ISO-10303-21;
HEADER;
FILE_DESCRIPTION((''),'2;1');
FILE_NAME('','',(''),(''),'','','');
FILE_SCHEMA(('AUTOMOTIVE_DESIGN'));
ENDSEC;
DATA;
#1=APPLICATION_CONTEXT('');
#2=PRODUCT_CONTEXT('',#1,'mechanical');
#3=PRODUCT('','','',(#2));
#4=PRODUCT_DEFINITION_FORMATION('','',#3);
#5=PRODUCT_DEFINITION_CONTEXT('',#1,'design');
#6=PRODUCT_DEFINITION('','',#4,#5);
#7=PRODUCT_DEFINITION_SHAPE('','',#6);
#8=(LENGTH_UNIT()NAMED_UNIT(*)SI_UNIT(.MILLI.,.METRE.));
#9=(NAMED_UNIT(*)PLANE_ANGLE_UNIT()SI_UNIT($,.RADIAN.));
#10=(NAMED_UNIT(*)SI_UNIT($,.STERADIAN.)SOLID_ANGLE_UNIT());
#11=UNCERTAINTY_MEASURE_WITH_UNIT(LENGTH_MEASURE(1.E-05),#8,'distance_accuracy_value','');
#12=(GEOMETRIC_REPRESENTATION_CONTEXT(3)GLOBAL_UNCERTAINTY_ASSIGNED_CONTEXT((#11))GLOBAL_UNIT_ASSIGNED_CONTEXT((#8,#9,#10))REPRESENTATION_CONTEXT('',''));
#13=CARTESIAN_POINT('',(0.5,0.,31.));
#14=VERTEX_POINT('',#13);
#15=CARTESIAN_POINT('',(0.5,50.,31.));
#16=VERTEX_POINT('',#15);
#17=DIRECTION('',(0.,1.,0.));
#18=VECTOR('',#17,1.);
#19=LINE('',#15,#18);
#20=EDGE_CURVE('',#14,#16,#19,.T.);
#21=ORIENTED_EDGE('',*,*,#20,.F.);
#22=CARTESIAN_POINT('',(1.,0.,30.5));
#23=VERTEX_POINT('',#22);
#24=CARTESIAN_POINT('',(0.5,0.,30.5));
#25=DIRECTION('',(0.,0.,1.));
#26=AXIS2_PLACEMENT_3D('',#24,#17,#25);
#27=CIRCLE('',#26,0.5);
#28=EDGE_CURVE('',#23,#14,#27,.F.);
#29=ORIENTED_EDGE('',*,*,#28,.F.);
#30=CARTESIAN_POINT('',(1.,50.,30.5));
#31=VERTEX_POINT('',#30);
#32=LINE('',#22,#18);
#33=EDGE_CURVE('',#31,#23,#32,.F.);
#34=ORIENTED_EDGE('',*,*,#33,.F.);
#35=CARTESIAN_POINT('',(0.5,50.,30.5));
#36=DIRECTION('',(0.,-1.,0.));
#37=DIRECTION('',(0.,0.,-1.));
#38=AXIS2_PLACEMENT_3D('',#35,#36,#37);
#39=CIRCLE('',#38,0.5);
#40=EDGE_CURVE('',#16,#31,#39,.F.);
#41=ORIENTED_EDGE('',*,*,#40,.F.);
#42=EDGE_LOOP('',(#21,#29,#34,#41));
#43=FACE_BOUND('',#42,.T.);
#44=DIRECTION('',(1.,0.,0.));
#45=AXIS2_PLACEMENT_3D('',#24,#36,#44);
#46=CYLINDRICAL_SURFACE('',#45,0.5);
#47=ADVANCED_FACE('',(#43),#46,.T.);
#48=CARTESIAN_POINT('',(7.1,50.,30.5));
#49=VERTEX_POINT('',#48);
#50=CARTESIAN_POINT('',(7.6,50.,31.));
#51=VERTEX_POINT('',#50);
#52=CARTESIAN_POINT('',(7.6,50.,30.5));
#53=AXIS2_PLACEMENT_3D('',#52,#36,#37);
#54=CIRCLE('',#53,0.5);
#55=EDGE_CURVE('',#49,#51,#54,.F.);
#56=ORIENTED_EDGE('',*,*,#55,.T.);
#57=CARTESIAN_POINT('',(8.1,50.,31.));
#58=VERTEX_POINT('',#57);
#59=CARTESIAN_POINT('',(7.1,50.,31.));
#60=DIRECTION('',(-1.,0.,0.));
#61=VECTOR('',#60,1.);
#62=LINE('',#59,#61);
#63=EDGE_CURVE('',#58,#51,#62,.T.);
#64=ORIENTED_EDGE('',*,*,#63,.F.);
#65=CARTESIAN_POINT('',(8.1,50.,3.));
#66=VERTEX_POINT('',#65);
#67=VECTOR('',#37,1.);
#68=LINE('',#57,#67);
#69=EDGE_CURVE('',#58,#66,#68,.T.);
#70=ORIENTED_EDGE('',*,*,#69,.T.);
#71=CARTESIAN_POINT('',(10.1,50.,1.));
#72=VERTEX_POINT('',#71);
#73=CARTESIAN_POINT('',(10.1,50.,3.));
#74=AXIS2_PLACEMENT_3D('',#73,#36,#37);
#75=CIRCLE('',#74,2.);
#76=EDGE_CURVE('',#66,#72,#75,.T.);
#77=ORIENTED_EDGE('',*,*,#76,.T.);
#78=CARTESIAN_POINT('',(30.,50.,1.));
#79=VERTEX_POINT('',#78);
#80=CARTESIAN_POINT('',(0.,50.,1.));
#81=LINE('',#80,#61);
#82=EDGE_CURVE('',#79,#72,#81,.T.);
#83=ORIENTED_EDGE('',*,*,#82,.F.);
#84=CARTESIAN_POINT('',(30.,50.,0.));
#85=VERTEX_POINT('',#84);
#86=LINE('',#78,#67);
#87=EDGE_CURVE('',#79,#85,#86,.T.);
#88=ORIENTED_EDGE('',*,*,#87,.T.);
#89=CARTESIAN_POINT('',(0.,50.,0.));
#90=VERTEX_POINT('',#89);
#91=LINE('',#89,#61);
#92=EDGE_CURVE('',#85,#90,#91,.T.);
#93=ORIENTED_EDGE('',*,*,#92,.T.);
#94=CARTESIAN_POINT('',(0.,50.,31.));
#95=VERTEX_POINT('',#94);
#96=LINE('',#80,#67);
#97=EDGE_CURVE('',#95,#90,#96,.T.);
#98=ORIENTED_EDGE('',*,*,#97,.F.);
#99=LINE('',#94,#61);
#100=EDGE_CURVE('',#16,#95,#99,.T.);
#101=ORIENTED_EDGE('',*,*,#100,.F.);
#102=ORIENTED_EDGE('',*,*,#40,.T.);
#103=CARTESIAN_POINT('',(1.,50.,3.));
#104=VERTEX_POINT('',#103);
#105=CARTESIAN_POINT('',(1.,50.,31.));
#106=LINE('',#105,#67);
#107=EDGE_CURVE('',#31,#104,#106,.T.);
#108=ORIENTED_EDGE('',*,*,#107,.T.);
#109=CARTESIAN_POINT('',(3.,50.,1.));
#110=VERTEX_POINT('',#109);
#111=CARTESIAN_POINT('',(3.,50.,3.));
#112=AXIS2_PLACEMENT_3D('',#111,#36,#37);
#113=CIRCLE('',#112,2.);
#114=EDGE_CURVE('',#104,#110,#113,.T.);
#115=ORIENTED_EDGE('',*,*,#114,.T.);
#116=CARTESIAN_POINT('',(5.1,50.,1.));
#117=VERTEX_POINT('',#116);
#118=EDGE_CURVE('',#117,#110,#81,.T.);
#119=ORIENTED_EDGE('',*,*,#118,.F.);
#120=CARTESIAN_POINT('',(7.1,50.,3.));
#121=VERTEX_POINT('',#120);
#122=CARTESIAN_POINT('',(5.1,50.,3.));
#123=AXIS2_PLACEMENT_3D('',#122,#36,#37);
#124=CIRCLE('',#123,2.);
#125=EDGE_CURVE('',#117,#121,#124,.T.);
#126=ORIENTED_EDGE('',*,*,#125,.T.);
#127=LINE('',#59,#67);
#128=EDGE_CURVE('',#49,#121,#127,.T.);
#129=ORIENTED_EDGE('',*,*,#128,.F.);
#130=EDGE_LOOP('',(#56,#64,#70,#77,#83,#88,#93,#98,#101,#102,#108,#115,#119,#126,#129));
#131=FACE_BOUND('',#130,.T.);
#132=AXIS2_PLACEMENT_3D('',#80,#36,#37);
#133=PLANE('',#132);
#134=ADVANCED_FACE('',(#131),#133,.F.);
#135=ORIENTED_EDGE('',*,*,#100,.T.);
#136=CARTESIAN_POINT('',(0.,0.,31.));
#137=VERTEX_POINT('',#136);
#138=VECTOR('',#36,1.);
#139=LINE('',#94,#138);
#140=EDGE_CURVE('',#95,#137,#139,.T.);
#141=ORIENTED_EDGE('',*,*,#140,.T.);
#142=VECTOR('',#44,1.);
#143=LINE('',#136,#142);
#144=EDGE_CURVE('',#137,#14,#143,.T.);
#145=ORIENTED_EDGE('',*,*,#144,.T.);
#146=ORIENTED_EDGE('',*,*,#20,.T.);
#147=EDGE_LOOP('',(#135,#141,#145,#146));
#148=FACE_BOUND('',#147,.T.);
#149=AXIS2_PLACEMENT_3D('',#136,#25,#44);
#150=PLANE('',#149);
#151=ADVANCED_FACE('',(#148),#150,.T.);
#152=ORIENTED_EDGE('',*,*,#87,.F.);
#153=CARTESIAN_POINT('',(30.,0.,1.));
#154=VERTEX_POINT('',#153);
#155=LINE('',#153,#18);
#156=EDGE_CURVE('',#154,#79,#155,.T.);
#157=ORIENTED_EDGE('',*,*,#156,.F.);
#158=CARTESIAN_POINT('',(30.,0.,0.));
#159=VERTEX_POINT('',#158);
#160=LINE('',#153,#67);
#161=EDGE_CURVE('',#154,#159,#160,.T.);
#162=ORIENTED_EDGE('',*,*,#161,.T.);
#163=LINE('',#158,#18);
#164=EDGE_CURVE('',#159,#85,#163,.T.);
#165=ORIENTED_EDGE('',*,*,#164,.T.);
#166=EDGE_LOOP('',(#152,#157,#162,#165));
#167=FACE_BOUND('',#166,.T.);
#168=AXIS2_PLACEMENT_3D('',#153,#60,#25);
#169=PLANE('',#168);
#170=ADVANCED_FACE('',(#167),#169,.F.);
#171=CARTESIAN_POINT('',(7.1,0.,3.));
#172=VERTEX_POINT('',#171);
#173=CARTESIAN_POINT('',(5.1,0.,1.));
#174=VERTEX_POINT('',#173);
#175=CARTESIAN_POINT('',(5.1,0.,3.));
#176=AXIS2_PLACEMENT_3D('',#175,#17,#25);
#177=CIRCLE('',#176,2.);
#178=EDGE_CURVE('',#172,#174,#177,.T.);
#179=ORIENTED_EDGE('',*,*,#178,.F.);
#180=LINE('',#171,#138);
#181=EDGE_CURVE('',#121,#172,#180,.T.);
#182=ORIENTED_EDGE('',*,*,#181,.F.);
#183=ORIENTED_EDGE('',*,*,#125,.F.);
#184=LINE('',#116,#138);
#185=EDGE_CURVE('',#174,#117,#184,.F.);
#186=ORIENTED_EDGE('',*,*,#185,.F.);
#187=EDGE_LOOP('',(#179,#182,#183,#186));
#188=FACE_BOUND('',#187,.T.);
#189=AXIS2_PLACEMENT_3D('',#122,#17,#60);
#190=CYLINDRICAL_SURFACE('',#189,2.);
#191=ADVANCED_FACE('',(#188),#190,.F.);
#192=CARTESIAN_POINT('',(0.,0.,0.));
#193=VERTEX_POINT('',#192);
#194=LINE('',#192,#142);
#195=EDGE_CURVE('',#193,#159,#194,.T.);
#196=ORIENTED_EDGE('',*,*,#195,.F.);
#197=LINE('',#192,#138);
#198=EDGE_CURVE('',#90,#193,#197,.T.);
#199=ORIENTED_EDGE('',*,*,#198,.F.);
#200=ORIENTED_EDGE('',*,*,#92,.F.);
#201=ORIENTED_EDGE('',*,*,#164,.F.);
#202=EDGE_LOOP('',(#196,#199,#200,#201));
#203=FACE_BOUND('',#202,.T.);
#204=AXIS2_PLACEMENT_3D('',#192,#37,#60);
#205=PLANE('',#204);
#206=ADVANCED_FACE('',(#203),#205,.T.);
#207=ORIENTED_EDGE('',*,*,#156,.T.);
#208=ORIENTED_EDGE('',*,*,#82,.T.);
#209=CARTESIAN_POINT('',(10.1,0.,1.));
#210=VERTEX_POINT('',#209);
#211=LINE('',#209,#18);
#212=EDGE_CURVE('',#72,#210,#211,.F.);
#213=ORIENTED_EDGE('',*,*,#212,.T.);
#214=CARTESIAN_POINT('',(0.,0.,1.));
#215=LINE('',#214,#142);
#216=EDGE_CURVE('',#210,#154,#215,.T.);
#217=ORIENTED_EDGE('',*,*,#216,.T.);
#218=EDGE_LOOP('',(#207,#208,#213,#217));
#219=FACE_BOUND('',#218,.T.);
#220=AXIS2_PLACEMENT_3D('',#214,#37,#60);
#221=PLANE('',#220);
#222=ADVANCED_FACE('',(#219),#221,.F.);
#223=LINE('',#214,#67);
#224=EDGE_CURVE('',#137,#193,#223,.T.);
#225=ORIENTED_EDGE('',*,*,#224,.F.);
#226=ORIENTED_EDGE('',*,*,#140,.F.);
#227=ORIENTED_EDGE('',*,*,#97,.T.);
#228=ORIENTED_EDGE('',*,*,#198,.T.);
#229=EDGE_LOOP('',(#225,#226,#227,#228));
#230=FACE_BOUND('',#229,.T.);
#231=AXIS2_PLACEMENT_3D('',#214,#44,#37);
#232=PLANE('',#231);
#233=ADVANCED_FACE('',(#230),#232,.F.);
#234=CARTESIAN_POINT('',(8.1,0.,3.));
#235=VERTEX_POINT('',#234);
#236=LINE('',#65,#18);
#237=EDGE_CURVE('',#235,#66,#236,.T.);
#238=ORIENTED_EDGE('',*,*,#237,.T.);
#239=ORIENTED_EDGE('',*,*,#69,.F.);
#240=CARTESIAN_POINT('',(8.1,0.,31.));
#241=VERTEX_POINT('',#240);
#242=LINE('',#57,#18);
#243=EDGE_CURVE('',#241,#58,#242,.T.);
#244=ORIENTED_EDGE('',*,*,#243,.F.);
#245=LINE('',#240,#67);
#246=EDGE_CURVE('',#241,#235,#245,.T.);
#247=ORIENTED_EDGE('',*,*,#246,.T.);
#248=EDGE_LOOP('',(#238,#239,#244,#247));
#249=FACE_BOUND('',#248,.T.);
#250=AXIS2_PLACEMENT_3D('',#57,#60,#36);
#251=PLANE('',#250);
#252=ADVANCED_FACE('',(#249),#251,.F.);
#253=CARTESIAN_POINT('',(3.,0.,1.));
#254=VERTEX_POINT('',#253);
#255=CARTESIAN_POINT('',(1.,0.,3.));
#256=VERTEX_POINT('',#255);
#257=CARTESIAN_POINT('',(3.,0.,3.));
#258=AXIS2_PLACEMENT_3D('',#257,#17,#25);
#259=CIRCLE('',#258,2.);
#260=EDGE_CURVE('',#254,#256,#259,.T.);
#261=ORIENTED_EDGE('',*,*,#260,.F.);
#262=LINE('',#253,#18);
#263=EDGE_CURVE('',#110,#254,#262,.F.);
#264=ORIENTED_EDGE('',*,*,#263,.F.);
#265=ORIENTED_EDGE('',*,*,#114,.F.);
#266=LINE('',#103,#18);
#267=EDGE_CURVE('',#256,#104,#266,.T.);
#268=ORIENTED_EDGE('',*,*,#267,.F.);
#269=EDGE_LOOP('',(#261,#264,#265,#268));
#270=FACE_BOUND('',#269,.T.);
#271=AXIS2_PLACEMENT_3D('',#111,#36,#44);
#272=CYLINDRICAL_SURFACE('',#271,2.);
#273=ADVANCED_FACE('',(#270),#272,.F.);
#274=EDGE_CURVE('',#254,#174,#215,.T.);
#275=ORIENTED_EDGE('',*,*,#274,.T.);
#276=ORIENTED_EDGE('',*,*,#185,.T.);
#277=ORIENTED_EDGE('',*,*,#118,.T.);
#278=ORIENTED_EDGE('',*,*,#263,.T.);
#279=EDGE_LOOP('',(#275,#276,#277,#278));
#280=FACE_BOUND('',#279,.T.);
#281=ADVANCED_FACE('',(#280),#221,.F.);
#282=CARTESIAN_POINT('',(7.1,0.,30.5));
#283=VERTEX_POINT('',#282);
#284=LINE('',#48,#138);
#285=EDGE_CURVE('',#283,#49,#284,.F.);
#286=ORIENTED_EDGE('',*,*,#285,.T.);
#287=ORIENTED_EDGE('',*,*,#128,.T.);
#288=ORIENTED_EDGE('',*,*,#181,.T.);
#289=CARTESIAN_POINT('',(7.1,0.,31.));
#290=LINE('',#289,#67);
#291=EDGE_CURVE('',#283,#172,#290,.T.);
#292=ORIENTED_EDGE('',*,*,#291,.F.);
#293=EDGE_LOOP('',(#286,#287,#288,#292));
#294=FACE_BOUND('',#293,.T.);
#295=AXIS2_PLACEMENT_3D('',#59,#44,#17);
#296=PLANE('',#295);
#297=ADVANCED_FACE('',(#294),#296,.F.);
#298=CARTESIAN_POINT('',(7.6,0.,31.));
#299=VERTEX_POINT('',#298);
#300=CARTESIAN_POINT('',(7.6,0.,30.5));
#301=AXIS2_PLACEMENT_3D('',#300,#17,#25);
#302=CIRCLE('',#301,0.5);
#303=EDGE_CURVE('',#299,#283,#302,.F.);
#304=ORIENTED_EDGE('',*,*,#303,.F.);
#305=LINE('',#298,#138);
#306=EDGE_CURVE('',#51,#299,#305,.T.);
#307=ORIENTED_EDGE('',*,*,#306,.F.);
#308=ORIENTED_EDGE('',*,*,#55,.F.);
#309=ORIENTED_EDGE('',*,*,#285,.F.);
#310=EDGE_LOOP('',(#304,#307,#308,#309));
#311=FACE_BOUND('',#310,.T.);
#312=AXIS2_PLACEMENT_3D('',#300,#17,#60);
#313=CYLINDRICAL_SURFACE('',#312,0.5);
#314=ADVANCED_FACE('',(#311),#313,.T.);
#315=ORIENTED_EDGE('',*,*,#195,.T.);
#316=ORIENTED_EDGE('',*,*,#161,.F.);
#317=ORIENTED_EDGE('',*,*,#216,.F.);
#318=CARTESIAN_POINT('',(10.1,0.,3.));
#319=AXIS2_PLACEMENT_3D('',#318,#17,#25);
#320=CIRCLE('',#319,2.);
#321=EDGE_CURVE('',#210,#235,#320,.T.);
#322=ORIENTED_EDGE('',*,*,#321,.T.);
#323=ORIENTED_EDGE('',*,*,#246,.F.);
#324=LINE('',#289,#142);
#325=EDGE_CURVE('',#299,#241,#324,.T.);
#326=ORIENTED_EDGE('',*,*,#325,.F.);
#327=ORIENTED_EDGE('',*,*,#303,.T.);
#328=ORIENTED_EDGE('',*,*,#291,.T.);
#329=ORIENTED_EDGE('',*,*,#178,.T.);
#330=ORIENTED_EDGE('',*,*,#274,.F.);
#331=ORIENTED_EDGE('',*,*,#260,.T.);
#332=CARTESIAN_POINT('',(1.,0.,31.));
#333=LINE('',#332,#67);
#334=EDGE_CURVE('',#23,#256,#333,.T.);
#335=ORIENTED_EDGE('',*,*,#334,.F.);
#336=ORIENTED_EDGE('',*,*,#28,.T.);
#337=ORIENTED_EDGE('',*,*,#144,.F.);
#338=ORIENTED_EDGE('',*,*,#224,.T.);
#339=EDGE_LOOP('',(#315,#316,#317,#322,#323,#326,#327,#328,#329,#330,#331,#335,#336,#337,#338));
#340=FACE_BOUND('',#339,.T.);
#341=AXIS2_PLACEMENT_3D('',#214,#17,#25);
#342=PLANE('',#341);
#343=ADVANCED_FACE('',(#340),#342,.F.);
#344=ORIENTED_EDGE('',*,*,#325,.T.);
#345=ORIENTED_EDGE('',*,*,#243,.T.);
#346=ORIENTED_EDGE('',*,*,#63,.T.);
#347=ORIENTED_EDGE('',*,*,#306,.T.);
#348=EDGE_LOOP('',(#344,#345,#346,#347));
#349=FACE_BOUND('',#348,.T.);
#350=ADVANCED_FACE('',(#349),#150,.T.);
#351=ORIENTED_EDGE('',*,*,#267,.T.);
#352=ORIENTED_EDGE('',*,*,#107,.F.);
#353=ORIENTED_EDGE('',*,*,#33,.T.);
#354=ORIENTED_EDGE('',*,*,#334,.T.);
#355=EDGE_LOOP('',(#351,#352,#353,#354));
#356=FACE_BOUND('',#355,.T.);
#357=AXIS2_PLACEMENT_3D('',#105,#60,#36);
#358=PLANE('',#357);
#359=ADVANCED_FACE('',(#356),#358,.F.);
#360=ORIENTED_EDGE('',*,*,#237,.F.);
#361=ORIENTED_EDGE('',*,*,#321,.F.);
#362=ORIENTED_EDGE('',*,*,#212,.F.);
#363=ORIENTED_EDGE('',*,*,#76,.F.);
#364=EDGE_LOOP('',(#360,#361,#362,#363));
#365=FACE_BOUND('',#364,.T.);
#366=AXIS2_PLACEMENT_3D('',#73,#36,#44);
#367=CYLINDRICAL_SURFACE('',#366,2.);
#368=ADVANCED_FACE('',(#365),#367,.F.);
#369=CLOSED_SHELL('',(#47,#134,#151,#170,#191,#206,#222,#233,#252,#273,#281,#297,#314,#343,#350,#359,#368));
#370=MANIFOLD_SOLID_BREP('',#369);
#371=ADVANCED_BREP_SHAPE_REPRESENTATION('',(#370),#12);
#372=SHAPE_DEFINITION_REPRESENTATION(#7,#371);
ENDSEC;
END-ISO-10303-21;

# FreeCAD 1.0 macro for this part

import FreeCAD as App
import Part
import Sketcher

V = App.Vector


def edges_at(feature, points):
    """Names of the edges that pass closest to the given points."""
    edges = feature.Shape.Edges
    near = lambda p: min(range(len(edges)), key=lambda i: edges[i].distToShape(Part.Vertex(*p))[0])
    return sorted({f"Edge{near(p) + 1}" for p in points})


def add_polygon(sketch, points):
    """Adds a closed chain of lines whose ends are joined by coincident constraints."""
    first, n = sketch.GeometryCount, len(points)
    for a, b in zip(points, points[1:] + points[:1]):
        sketch.addGeometry(Part.LineSegment(App.Vector(*a, 0), App.Vector(*b, 0)), False)
    for i in range(n):
        sketch.addConstraint(Sketcher.Constraint("Coincident", first + i, 2, first + (i + 1) % n, 1))

doc = App.newDocument("Part")
body = doc.addObject("PartDesign::Body", "Body")

# Sketch on XY plane
sketch1 = body.newObject("Sketcher::SketchObject", "Sketch")
sketch1.AttachmentSupport = (doc.getObject("XY_Plane"), [""])
sketch1.MapMode = "FlatFace"
add_polygon(sketch1, [(0, 50), (0, 0), (30, 0), (30, 50)])  # lines 0-3
sketch1.addConstraint(Sketcher.Constraint("Vertical", 0))
sketch1.addConstraint(Sketcher.Constraint("Horizontal", 1))
sketch1.addConstraint(Sketcher.Constraint("Vertical", 2))
sketch1.addConstraint(Sketcher.Constraint("Horizontal", 3))
sketch1.addConstraint(Sketcher.Constraint("Coincident", 0, 2, -1, 1))
sketch1.addConstraint(Sketcher.Constraint("DistanceX", 1, 1, 1, 2, 30.0))
sketch1.addConstraint(Sketcher.Constraint("DistanceY", 0, 2, 0, 1, 50.0))
pad1 = body.newObject("PartDesign::Pad", "Pad")
pad1.Profile = sketch1
pad1.Length = 1

# Sketch on XY plane
sketch2 = body.newObject("Sketcher::SketchObject", "Sketch001")
sketch2.AttachmentSupport = (doc.getObject("XY_Plane"), [""])
sketch2.MapMode = "FlatFace"
sketch2.AttachmentOffset = App.Placement(V(0, 0, 1), App.Rotation())
add_polygon(sketch2, [(0, 50), (0, 0), (1, 0), (1, 50)])  # lines 0-3
add_polygon(sketch2, [(7.1, 50), (7.1, 0), (8.1, 0), (8.1, 50)])  # lines 4-7
sketch2.addConstraint(Sketcher.Constraint("Vertical", 0))
sketch2.addConstraint(Sketcher.Constraint("Horizontal", 1))
sketch2.addConstraint(Sketcher.Constraint("Vertical", 2))
sketch2.addConstraint(Sketcher.Constraint("Horizontal", 3))
sketch2.addConstraint(Sketcher.Constraint("Vertical", 4))
sketch2.addConstraint(Sketcher.Constraint("Horizontal", 5))
sketch2.addConstraint(Sketcher.Constraint("Vertical", 6))
sketch2.addConstraint(Sketcher.Constraint("Horizontal", 7))
sketch2.addConstraint(Sketcher.Constraint("Coincident", 0, 2, -1, 1))
sketch2.addConstraint(Sketcher.Constraint("PointOnObject", 4, 2, -1))
sketch2.addConstraint(Sketcher.Constraint("Horizontal", 3, 2, 6, 2))
sketch2.addConstraint(Sketcher.Constraint("Equal", 3, 5))
sketch2.addConstraint(Sketcher.Constraint("DistanceX", 1, 1, 1, 2, 1.0))
sketch2.addConstraint(Sketcher.Constraint("DistanceY", 0, 2, 0, 1, 50.0))
sketch2.addConstraint(Sketcher.Constraint("DistanceX", -1, 1, 4, 2, 7.1))
pad2 = body.newObject("PartDesign::Pad", "Pad001")
pad2.Profile = sketch2
pad2.Length = 30
doc.recompute()

fillet = body.newObject("PartDesign::Fillet", "Fillet")
fillet.Base = (pad2, edges_at(pad2, [(1, 25, 1), (7.1, 25, 1), (8.1, 25, 1)]))
fillet.Radius = 2
doc.recompute()

fillet2 = body.newObject("PartDesign::Fillet", "Fillet001")
fillet2.Base = (fillet, edges_at(fillet, [(1, 25, 31), (7.1, 25, 31)]))
fillet2.Radius = 0.5

doc.recompute()
